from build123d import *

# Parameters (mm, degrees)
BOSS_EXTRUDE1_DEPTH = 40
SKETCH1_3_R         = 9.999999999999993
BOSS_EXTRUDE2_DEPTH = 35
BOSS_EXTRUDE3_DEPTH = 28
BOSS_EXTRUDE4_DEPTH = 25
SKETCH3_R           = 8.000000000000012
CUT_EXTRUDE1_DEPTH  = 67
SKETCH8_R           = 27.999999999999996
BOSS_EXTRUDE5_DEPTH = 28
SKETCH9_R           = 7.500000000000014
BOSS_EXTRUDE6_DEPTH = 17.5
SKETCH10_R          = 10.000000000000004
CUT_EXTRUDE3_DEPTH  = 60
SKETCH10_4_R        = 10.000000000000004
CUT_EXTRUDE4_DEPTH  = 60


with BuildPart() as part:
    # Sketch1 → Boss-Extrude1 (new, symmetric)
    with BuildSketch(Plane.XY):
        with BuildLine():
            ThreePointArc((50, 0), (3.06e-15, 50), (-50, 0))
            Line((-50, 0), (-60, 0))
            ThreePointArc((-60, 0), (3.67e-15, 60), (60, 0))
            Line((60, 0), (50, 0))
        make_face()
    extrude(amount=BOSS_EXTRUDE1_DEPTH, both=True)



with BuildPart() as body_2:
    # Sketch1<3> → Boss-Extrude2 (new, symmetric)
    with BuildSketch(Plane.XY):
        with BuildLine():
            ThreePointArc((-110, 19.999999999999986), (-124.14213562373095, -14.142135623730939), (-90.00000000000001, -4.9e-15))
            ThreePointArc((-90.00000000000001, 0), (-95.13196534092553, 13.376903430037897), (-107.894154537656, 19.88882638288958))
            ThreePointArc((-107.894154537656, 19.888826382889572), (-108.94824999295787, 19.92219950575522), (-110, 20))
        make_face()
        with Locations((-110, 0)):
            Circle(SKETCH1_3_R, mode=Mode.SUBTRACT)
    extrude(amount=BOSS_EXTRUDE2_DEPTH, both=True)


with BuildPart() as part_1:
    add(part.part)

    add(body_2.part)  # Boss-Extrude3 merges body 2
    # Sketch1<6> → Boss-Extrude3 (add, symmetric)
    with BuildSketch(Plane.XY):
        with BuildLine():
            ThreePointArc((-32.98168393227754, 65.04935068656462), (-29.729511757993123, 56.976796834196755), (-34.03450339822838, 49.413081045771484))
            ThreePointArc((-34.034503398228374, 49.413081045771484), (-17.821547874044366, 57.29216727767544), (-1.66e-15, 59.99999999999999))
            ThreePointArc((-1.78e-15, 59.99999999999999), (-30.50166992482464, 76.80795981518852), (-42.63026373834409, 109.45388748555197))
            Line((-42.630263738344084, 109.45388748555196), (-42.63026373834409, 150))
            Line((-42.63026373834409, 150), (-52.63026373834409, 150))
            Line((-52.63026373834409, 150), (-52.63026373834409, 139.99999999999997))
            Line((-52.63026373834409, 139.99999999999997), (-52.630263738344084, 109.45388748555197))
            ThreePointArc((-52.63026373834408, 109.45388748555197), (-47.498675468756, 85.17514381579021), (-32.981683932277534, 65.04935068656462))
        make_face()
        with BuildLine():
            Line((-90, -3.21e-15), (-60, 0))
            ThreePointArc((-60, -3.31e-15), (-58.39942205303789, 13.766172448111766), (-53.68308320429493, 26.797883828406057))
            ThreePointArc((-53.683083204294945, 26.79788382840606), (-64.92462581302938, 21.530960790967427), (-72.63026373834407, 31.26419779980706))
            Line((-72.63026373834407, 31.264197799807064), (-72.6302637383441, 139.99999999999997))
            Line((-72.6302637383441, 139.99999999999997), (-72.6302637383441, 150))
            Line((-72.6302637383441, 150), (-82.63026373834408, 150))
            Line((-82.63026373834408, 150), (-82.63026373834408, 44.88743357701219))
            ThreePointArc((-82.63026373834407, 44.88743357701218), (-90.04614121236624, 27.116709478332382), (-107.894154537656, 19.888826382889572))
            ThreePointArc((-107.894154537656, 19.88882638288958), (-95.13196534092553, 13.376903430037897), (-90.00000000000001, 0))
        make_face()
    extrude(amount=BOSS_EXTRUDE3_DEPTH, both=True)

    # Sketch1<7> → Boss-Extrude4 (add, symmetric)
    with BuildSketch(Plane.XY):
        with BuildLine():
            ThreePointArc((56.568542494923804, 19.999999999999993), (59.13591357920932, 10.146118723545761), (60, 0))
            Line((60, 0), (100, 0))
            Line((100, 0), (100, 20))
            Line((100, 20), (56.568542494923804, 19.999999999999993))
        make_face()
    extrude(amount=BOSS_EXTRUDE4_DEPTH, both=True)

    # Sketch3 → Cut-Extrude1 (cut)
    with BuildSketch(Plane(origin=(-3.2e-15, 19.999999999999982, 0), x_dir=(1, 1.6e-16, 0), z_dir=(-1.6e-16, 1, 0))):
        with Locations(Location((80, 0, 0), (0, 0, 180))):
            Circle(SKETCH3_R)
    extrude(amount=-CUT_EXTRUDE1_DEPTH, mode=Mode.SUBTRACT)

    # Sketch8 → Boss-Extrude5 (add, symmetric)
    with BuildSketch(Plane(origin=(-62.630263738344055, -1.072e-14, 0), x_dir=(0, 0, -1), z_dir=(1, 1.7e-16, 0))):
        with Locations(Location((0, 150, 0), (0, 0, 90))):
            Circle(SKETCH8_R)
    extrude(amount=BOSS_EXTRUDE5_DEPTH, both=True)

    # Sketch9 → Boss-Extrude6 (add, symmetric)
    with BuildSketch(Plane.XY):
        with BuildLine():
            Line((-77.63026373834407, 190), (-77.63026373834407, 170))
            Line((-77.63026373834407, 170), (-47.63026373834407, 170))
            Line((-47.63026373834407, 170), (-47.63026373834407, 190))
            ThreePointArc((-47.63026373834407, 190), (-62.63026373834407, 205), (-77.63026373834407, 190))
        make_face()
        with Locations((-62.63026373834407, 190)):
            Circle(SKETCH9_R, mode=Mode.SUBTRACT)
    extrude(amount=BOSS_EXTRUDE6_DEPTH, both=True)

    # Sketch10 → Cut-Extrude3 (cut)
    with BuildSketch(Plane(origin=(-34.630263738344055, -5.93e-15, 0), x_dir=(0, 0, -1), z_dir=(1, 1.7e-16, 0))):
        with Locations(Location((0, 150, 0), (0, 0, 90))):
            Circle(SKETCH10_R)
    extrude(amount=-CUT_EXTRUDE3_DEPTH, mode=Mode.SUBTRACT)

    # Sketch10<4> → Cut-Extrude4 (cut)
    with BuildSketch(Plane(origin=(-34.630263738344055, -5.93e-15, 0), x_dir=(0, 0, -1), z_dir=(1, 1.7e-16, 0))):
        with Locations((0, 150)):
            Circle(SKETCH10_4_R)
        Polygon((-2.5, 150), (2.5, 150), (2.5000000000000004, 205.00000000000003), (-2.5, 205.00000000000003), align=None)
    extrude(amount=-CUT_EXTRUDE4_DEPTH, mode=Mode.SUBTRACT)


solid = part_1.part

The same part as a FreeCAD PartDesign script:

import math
import FreeCAD as App
import Part
import Sketcher
Q = App.Units.Quantity

doc = App.newDocument("Part")
body = doc.addObject("PartDesign::Body", "Body")

# Sketch on XY plane
sketch1 = body.newObject("Sketcher::SketchObject", "Sketch")
sketch1.AttachmentSupport = (doc.getObject("XY_Plane"), [""])
sketch1.MapMode = "FlatFace"
sketch1.addGeometry(Part.ArcOfCircle(Part.Circle(App.Vector(0, 0, 0), App.Vector(0, 0, 1), 50), math.radians(0), math.radians(180)), False)
sketch1.addGeometry(Part.LineSegment(App.Vector(50, 0, 0), App.Vector(60, 0, 0)), False)
sketch1.addGeometry(Part.ArcOfCircle(Part.Circle(App.Vector(0, 0, 0), App.Vector(0, 0, 1), 60), math.radians(0), math.radians(180)), False)
sketch1.addGeometry(Part.LineSegment(App.Vector(-60, 0, 0), App.Vector(-50, 0, 0)), False)
sketch1.addConstraint(Sketcher.Constraint("Coincident", 0, 1, 1, 1))
sketch1.addConstraint(Sketcher.Constraint("Coincident", 1, 2, 2, 1))
sketch1.addConstraint(Sketcher.Constraint("Coincident", 2, 2, 3, 1))
sketch1.addConstraint(Sketcher.Constraint("Coincident", 3, 2, 0, 2))
sketch1.addConstraint(Sketcher.Constraint("Horizontal", 1))
sketch1.addConstraint(Sketcher.Constraint("Horizontal", 3))
sketch1.addConstraint(Sketcher.Constraint("Coincident", 0, 3, -1, 1))
sketch1.addConstraint(Sketcher.Constraint("Coincident", 2, 3, -1, 1))
sketch1.addConstraint(Sketcher.Constraint("PointOnObject", 0, 1, -1))
sketch1.addConstraint(Sketcher.Constraint("PointOnObject", 2, 2, -1))
sketch1.addConstraint(Sketcher.Constraint("Radius", 0, Q("50 mm")))
sketch1.addConstraint(Sketcher.Constraint("Radius", 2, Q("60 mm")))
pad1 = body.newObject("PartDesign::Pad", "Pad")
pad1.Profile = sketch1
pad1.Length = 80
pad1.Midplane = True
body2 = doc.addObject("PartDesign::Body", "Body001")

# Sketch on XY plane
sketch2 = body2.newObject("Sketcher::SketchObject", "Sketch001")
sketch2.AttachmentSupport = (doc.getObject("XY_Plane001"), [""])
sketch2.MapMode = "FlatFace"
sketch2.addGeometry(Part.ArcOfCircle(Part.Circle(App.Vector(-110, 0, 0), App.Vector(0, 0, 1), 20), math.radians(90), math.radians(444)), False)
sketch2.addGeometry(Part.ArcOfCircle(Part.Circle(App.Vector(-107.6, 44.9, 0), App.Vector(0, 0, 1), 25), math.radians(-95.44), math.radians(-90.6)), False)
sketch2.addGeometry(Part.Circle(App.Vector(-110, 0, 0), App.Vector(0, 0, 1), 10), False)
sketch2.addConstraint(Sketcher.Constraint("Coincident", 0, 1, 1, 1))
sketch2.addConstraint(Sketcher.Constraint("Coincident", 1, 2, 0, 2))
sketch2.addConstraint(Sketcher.Constraint("Coincident", 2, 3, 0, 3))
sketch2.addConstraint(Sketcher.Constraint("PointOnObject", 0, 3, -1))
sketch2.addConstraint(Sketcher.Constraint("Vertical", 2, 3, 0, 1))
sketch2.addConstraint(Sketcher.Constraint("Diameter", 2, Q("20 mm")))
sketch2.addConstraint(Sketcher.Constraint("Radius", 0, Q("20 mm")))
sketch2.addConstraint(Sketcher.Constraint("Radius", 1, Q("25 mm")))
sketch2.addConstraint(Sketcher.Constraint("DistanceX", 0, 3, -1, 1, Q("110 mm")))
sketch2.addConstraint(Sketcher.Constraint("DistanceX", 1, 2, 1, 3, Q("0.263891 mm")))
pad2 = body2.newObject("PartDesign::Pad", "Pad001")
pad2.Profile = sketch2
pad2.Length = 70
pad2.Midplane = True
body.AllowCompound = True
doc.recompute()

boolean = body.newObject("PartDesign::Boolean", "Boolean")
boolean.Type = "Fuse"
boolean.addObjects([body2])

# Sketch on XY plane
sketch3 = body.newObject("Sketcher::SketchObject", "Sketch002")
sketch3.AttachmentSupport = (doc.getObject("XY_Plane"), [""])
sketch3.MapMode = "FlatFace"
sketch3.addGeometry(Part.ArcOfCircle(Part.Circle(App.Vector(-40, 58, 0), App.Vector(0, 0, 1), 10), math.radians(-55), math.radians(48)), False)
sketch3.addGeometry(Part.ArcOfCircle(Part.Circle(App.Vector(0, 0, 0), App.Vector(0, 0, 1), 60), math.radians(90), math.radians(125)), False)
sketch3.addGeometry(Part.ArcOfCircle(Part.Circle(App.Vector(7, 109, 0), App.Vector(0, 0, 1), 50), math.radians(180), math.radians(262)), False)
sketch3.addGeometry(Part.LineSegment(App.Vector(-43, 109, 0), App.Vector(-43, 150, 0)), False)
sketch3.addGeometry(Part.LineSegment(App.Vector(-43, 150, 0), App.Vector(-53, 150, 0)), False)
sketch3.addGeometry(Part.LineSegment(App.Vector(-53, 150, 0), App.Vector(-53, 109, 0)), False)
sketch3.addGeometry(Part.ArcOfCircle(Part.Circle(App.Vector(7, 109, 0), App.Vector(0, 0, 1), 60), math.radians(180), math.radians(228)), False)
sketch3.addGeometry(Part.LineSegment(App.Vector(-90, 0, 0), App.Vector(-60, 0, 0)), False)
sketch3.addGeometry(Part.ArcOfCircle(Part.Circle(App.Vector(0, 0, 0), App.Vector(0, 0, 1), 60), math.radians(153), math.radians(180)), False)
sketch3.addGeometry(Part.ArcOfCircle(Part.Circle(App.Vector(-63, 31, 0), App.Vector(0, 0, 1), 10), math.radians(180), math.radians(333)), False)
sketch3.addGeometry(Part.LineSegment(App.Vector(-73, 31, 0), App.Vector(-73, 150, 0)), False)
sketch3.addGeometry(Part.LineSegment(App.Vector(-73, 150, 0), App.Vector(-83, 150, 0)), False)
sketch3.addGeometry(Part.LineSegment(App.Vector(-83, 150, 0), App.Vector(-83, 45, 0)), False)
sketch3.addGeometry(Part.ArcOfCircle(Part.Circle(App.Vector(-108, 45, 0), App.Vector(0, 0, 1), 25), math.radians(-91), math.radians(0)), False)
sketch3.addGeometry(Part.ArcOfCircle(Part.Circle(App.Vector(-110, 0, 0), App.Vector(0, 0, 1), 20), math.radians(0), math.radians(84)), False)
sketch3.addConstraint(Sketcher.Constraint("Tangent", 0, 1, 1, 2))
sketch3.addConstraint(Sketcher.Constraint("Coincident", 1, 1, 2, 2))
sketch3.addConstraint(Sketcher.Constraint("Tangent", 2, 1, 3, 1))
sketch3.addConstraint(Sketcher.Constraint("Coincident", 3, 2, 4, 1))
sketch3.addConstraint(Sketcher.Constraint("Coincident", 4, 2, 5, 1))
sketch3.addConstraint(Sketcher.Constraint("Tangent", 5, 2, 6, 1))
sketch3.addConstraint(Sketcher.Constraint("Tangent", 6, 2, 0, 2))
sketch3.addConstraint(Sketcher.Constraint("Coincident", 7, 2, 8, 2))
sketch3.addConstraint(Sketcher.Constraint("Tangent", 8, 1, 9, 2))
sketch3.addConstraint(Sketcher.Constraint("Tangent", 9, 1, 10, 1))
sketch3.addConstraint(Sketcher.Constraint("Coincident", 10, 2, 11, 1))
sketch3.addConstraint(Sketcher.Constraint("Coincident", 11, 2, 12, 1))
sketch3.addConstraint(Sketcher.Constraint("Tangent", 12, 2, 13, 2))
sketch3.addConstraint(Sketcher.Constraint("Coincident", 13, 1, 14, 2))
sketch3.addConstraint(Sketcher.Constraint("Coincident", 14, 1, 7, 1))
sketch3.addConstraint(Sketcher.Constraint("Vertical", 3))
sketch3.addConstraint(Sketcher.Constraint("Horizontal", 4))
sketch3.addConstraint(Sketcher.Constraint("Vertical", 5))
sketch3.addConstraint(Sketcher.Constraint("Horizontal", 7))
sketch3.addConstraint(Sketcher.Constraint("Vertical", 10))
sketch3.addConstraint(Sketcher.Constraint("Horizontal", 11))
sketch3.addConstraint(Sketcher.Constraint("Vertical", 12))
sketch3.addConstraint(Sketcher.Constraint("Coincident", 1, 3, -1, 1))
sketch3.addConstraint(Sketcher.Constraint("Coincident", 8, 3, -1, 1))
sketch3.addConstraint(Sketcher.Constraint("Coincident", 6, 3, 2, 3))
sketch3.addConstraint(Sketcher.Constraint("Equal", 1, 6))
sketch3.addConstraint(Sketcher.Constraint("Equal", 6, 8))
sketch3.addConstraint(Sketcher.Constraint("Equal", 0, 9))
sketch3.addConstraint(Sketcher.Constraint("PointOnObject", 14, 3, -1))
sketch3.addConstraint(Sketcher.Constraint("PointOnObject", 1, 1, -2))
sketch3.addConstraint(Sketcher.Constraint("PointOnObject", 7, 2, -1))
sketch3.addConstraint(Sketcher.Constraint("Horizontal", 4, 2, 10, 2))
sketch3.addConstraint(Sketcher.Constraint("Equal", 4, 11))
sketch3.addConstraint(Sketcher.Constraint("Radius", 0, Q("10 mm")))
sketch3.addConstraint(Sketcher.Constraint("Radius", 1, Q("60 mm")))
sketch3.addConstraint(Sketcher.Constraint("Radius", 2, Q("50 mm")))
sketch3.addConstraint(Sketcher.Constraint("Radius", 13, Q("25 mm")))
sketch3.addConstraint(Sketcher.Constraint("Radius", 14, Q("20 mm")))
sketch3.addConstraint(Sketcher.Constraint("DistanceX", 7, 1, 7, 2, Q("30 mm")))
sketch3.addConstraint(Sketcher.Constraint("DistanceY", -1, 1, 3, 2, Q("150 mm")))
sketch3.addConstraint(Sketcher.Constraint("DistanceX", 9, 3, 2, 3, Q("70 mm")))
sketch3.addConstraint(Sketcher.Constraint("DistanceY", 3, 1, 3, 2, Q("40.546113 mm")))
sketch3.addConstraint(Sketcher.Constraint("DistanceY", 12, 2, 12, 1, Q("105.112566 mm")))
pad3 = body.newObject("PartDesign::Pad", "Pad002")
pad3.Profile = sketch3
pad3.Length = 56
pad3.Midplane = True

# Sketch on XY plane
sketch4 = body.newObject("Sketcher::SketchObject", "Sketch003")
sketch4.AttachmentSupport = (doc.getObject("XY_Plane"), [""])
sketch4.MapMode = "FlatFace"
sketch4.addGeometry(Part.ArcOfCircle(Part.Circle(App.Vector(0, 0, 0), App.Vector(0, 0, 1), 60), math.radians(0), math.radians(19.47)), False)
sketch4.addGeometry(Part.LineSegment(App.Vector(60, 0, 0), App.Vector(100, 0, 0)), False)
sketch4.addGeometry(Part.LineSegment(App.Vector(100, 0, 0), App.Vector(100, 20, 0)), False)
sketch4.addGeometry(Part.LineSegment(App.Vector(100, 20, 0), App.Vector(57, 20, 0)), False)
sketch4.addConstraint(Sketcher.Constraint("Coincident", 0, 1, 1, 1))
sketch4.addConstraint(Sketcher.Constraint("Coincident", 1, 2, 2, 1))
sketch4.addConstraint(Sketcher.Constraint("Coincident", 2, 2, 3, 1))
sketch4.addConstraint(Sketcher.Constraint("Coincident", 3, 2, 0, 2))
sketch4.addConstraint(Sketcher.Constraint("Horizontal", 1))
sketch4.addConstraint(Sketcher.Constraint("Vertical", 2))
sketch4.addConstraint(Sketcher.Constraint("Horizontal", 3))
sketch4.addConstraint(Sketcher.Constraint("Coincident", 0, 3, -1, 1))
sketch4.addConstraint(Sketcher.Constraint("PointOnObject", 0, 1, -1))
sketch4.addConstraint(Sketcher.Constraint("Radius", 0, Q("60 mm")))
sketch4.addConstraint(Sketcher.Constraint("DistanceX", 1, 1, 1, 2, Q("40 mm")))
sketch4.addConstraint(Sketcher.Constraint("DistanceY", 2, 1, 2, 2, Q("20 mm")))
pad4 = body.newObject("PartDesign::Pad", "Pad003")
pad4.Profile = sketch4
pad4.Length = 50
pad4.Midplane = True

# Sketch on XZ plane
sketch5 = body.newObject("Sketcher::SketchObject", "Sketch004")
sketch5.AttachmentSupport = (doc.getObject("XZ_Plane"), [""])
sketch5.MapMode = "FlatFace"
sketch5.AttachmentOffset = App.Placement(App.Vector(0, 0, -20), App.Rotation())
sketch5.addGeometry(Part.Circle(App.Vector(80, 0, 0), App.Vector(0, 0, 1), 8), False)
sketch5.addConstraint(Sketcher.Constraint("PointOnObject", 0, 3, -1))
sketch5.addConstraint(Sketcher.Constraint("Diameter", 0, Q("16 mm")))
sketch5.addConstraint(Sketcher.Constraint("DistanceX", -1, 1, 0, 3, Q("80 mm")))
pocket1 = body.newObject("PartDesign::Pocket", "Pocket")
pocket1.Profile = sketch5
pocket1.Length = 67
pocket1.Reversed = True

# Sketch on YZ plane
sketch6 = body.newObject("Sketcher::SketchObject", "Sketch005")
sketch6.AttachmentSupport = (doc.getObject("YZ_Plane"), [""])
sketch6.MapMode = "FlatFace"
sketch6.AttachmentOffset = App.Placement(App.Vector(0, 0, -62.630264), App.Rotation())
sketch6.addGeometry(Part.Circle(App.Vector(150, 0, 0), App.Vector(0, 0, 1), 28), False)
sketch6.addConstraint(Sketcher.Constraint("PointOnObject", 0, 3, -1))
sketch6.addConstraint(Sketcher.Constraint("Diameter", 0, Q("56 mm")))
sketch6.addConstraint(Sketcher.Constraint("DistanceX", -1, 1, 0, 3, Q("150 mm")))
pad5 = body.newObject("PartDesign::Pad", "Pad004")
pad5.Profile = sketch6
pad5.Length = 56
pad5.Midplane = True

# Sketch on XY plane
sketch7 = body.newObject("Sketcher::SketchObject", "Sketch006")
sketch7.AttachmentSupport = (doc.getObject("XY_Plane"), [""])
sketch7.MapMode = "FlatFace"
sketch7.addGeometry(Part.LineSegment(App.Vector(-78, 190, 0), App.Vector(-78, 170, 0)), False)
sketch7.addGeometry(Part.LineSegment(App.Vector(-78, 170, 0), App.Vector(-48, 170, 0)), False)
sketch7.addGeometry(Part.LineSegment(App.Vector(-48, 170, 0), App.Vector(-48, 190, 0)), False)
sketch7.addGeometry(Part.ArcOfCircle(Part.Circle(App.Vector(-63, 190, 0), App.Vector(0, 0, 1), 15), math.radians(0), math.radians(180)), False)
sketch7.addGeometry(Part.Circle(App.Vector(-63, 190, 0), App.Vector(0, 0, 1), 8), False)
sketch7.addConstraint(Sketcher.Constraint("Coincident", 0, 2, 1, 1))
sketch7.addConstraint(Sketcher.Constraint("Coincident", 1, 2, 2, 1))
sketch7.addConstraint(Sketcher.Constraint("Tangent", 2, 2, 3, 1))
sketch7.addConstraint(Sketcher.Constraint("Tangent", 3, 2, 0, 1))
sketch7.addConstraint(Sketcher.Constraint("Vertical", 0))
sketch7.addConstraint(Sketcher.Constraint("Horizontal", 1))
sketch7.addConstraint(Sketcher.Constraint("Vertical", 2))
sketch7.addConstraint(Sketcher.Constraint("Coincident", 4, 3, 3, 3))
sketch7.addConstraint(Sketcher.Constraint("Diameter", 4, Q("15 mm")))
sketch7.addConstraint(Sketcher.Constraint("Radius", 3, Q("15 mm")))
sketch7.addConstraint(Sketcher.Constraint("DistanceY", 0, 2, 0, 1, Q("20 mm")))
sketch7.addConstraint(Sketcher.Constraint("DistanceY", -1, 1, 3, 3, Q("190 mm")))
sketch7.addConstraint(Sketcher.Constraint("DistanceX", 3, 3, -1, 1, Q("62.630264 mm")))
pad6 = body.newObject("PartDesign::Pad", "Pad005")
pad6.Profile = sketch7
pad6.Length = 35
pad6.Midplane = True

# Sketch on YZ plane
sketch8 = body.newObject("Sketcher::SketchObject", "Sketch007")
sketch8.AttachmentSupport = (doc.getObject("YZ_Plane"), [""])
sketch8.MapMode = "FlatFace"
sketch8.AttachmentOffset = App.Placement(App.Vector(0, 0, -34.630264), App.Rotation())
sketch8.addGeometry(Part.Circle(App.Vector(150, 0, 0), App.Vector(0, 0, 1), 10), False)
sketch8.addConstraint(Sketcher.Constraint("PointOnObject", 0, 3, -1))
sketch8.addConstraint(Sketcher.Constraint("Diameter", 0, Q("20 mm")))
sketch8.addConstraint(Sketcher.Constraint("DistanceX", -1, 1, 0, 3, Q("150 mm")))
pocket2 = body.newObject("PartDesign::Pocket", "Pocket001")
pocket2.Profile = sketch8
pocket2.Length = 60

# Sketch on YZ plane
sketch9 = body.newObject("Sketcher::SketchObject", "Sketch008")
sketch9.AttachmentSupport = (doc.getObject("YZ_Plane"), [""])
sketch9.MapMode = "FlatFace"
sketch9.AttachmentOffset = App.Placement(App.Vector(0, 0, -34.630264), App.Rotation())
sketch9.addGeometry(Part.ArcOfCircle(Part.Circle(App.Vector(150, 0, 0), App.Vector(0, 0, 1), 10), math.radians(14), math.radians(346)), False)
sketch9.addGeometry(Part.LineSegment(App.Vector(160, -2, 0), App.Vector(205, -2, 0)), False)
sketch9.addGeometry(Part.LineSegment(App.Vector(205, -2, 0), App.Vector(205, 2, 0)), False)
sketch9.addGeometry(Part.LineSegment(App.Vector(205, 2, 0), App.Vector(160, 2, 0)), False)
sketch9.addConstraint(Sketcher.Constraint("Coincident", 0, 2, 1, 1))
sketch9.addConstraint(Sketcher.Constraint("Coincident", 1, 2, 2, 1))
sketch9.addConstraint(Sketcher.Constraint("Coincident", 2, 2, 3, 1))
sketch9.addConstraint(Sketcher.Constraint("Coincident", 3, 2, 0, 1))
sketch9.addConstraint(Sketcher.Constraint("Horizontal", 1))
sketch9.addConstraint(Sketcher.Constraint("Vertical", 2))
sketch9.addConstraint(Sketcher.Constraint("Horizontal", 3))
sketch9.addConstraint(Sketcher.Constraint("Symmetric", 0, 2, 3, 2, -1))
sketch9.addConstraint(Sketcher.Constraint("Radius", 0, Q("10 mm")))
sketch9.addConstraint(Sketcher.Constraint("DistanceY", 2, 1, 2, 2, Q("5 mm")))
sketch9.addConstraint(Sketcher.Constraint("DistanceX", -1, 1, 0, 3, Q("150 mm")))
sketch9.addConstraint(Sketcher.Constraint("DistanceX", -1, 1, 1, 2, Q("205 mm")))
pocket3 = body.newObject("PartDesign::Pocket", "Pocket002")
pocket3.Profile = sketch9
pocket3.Length = 60

doc.recompute()
